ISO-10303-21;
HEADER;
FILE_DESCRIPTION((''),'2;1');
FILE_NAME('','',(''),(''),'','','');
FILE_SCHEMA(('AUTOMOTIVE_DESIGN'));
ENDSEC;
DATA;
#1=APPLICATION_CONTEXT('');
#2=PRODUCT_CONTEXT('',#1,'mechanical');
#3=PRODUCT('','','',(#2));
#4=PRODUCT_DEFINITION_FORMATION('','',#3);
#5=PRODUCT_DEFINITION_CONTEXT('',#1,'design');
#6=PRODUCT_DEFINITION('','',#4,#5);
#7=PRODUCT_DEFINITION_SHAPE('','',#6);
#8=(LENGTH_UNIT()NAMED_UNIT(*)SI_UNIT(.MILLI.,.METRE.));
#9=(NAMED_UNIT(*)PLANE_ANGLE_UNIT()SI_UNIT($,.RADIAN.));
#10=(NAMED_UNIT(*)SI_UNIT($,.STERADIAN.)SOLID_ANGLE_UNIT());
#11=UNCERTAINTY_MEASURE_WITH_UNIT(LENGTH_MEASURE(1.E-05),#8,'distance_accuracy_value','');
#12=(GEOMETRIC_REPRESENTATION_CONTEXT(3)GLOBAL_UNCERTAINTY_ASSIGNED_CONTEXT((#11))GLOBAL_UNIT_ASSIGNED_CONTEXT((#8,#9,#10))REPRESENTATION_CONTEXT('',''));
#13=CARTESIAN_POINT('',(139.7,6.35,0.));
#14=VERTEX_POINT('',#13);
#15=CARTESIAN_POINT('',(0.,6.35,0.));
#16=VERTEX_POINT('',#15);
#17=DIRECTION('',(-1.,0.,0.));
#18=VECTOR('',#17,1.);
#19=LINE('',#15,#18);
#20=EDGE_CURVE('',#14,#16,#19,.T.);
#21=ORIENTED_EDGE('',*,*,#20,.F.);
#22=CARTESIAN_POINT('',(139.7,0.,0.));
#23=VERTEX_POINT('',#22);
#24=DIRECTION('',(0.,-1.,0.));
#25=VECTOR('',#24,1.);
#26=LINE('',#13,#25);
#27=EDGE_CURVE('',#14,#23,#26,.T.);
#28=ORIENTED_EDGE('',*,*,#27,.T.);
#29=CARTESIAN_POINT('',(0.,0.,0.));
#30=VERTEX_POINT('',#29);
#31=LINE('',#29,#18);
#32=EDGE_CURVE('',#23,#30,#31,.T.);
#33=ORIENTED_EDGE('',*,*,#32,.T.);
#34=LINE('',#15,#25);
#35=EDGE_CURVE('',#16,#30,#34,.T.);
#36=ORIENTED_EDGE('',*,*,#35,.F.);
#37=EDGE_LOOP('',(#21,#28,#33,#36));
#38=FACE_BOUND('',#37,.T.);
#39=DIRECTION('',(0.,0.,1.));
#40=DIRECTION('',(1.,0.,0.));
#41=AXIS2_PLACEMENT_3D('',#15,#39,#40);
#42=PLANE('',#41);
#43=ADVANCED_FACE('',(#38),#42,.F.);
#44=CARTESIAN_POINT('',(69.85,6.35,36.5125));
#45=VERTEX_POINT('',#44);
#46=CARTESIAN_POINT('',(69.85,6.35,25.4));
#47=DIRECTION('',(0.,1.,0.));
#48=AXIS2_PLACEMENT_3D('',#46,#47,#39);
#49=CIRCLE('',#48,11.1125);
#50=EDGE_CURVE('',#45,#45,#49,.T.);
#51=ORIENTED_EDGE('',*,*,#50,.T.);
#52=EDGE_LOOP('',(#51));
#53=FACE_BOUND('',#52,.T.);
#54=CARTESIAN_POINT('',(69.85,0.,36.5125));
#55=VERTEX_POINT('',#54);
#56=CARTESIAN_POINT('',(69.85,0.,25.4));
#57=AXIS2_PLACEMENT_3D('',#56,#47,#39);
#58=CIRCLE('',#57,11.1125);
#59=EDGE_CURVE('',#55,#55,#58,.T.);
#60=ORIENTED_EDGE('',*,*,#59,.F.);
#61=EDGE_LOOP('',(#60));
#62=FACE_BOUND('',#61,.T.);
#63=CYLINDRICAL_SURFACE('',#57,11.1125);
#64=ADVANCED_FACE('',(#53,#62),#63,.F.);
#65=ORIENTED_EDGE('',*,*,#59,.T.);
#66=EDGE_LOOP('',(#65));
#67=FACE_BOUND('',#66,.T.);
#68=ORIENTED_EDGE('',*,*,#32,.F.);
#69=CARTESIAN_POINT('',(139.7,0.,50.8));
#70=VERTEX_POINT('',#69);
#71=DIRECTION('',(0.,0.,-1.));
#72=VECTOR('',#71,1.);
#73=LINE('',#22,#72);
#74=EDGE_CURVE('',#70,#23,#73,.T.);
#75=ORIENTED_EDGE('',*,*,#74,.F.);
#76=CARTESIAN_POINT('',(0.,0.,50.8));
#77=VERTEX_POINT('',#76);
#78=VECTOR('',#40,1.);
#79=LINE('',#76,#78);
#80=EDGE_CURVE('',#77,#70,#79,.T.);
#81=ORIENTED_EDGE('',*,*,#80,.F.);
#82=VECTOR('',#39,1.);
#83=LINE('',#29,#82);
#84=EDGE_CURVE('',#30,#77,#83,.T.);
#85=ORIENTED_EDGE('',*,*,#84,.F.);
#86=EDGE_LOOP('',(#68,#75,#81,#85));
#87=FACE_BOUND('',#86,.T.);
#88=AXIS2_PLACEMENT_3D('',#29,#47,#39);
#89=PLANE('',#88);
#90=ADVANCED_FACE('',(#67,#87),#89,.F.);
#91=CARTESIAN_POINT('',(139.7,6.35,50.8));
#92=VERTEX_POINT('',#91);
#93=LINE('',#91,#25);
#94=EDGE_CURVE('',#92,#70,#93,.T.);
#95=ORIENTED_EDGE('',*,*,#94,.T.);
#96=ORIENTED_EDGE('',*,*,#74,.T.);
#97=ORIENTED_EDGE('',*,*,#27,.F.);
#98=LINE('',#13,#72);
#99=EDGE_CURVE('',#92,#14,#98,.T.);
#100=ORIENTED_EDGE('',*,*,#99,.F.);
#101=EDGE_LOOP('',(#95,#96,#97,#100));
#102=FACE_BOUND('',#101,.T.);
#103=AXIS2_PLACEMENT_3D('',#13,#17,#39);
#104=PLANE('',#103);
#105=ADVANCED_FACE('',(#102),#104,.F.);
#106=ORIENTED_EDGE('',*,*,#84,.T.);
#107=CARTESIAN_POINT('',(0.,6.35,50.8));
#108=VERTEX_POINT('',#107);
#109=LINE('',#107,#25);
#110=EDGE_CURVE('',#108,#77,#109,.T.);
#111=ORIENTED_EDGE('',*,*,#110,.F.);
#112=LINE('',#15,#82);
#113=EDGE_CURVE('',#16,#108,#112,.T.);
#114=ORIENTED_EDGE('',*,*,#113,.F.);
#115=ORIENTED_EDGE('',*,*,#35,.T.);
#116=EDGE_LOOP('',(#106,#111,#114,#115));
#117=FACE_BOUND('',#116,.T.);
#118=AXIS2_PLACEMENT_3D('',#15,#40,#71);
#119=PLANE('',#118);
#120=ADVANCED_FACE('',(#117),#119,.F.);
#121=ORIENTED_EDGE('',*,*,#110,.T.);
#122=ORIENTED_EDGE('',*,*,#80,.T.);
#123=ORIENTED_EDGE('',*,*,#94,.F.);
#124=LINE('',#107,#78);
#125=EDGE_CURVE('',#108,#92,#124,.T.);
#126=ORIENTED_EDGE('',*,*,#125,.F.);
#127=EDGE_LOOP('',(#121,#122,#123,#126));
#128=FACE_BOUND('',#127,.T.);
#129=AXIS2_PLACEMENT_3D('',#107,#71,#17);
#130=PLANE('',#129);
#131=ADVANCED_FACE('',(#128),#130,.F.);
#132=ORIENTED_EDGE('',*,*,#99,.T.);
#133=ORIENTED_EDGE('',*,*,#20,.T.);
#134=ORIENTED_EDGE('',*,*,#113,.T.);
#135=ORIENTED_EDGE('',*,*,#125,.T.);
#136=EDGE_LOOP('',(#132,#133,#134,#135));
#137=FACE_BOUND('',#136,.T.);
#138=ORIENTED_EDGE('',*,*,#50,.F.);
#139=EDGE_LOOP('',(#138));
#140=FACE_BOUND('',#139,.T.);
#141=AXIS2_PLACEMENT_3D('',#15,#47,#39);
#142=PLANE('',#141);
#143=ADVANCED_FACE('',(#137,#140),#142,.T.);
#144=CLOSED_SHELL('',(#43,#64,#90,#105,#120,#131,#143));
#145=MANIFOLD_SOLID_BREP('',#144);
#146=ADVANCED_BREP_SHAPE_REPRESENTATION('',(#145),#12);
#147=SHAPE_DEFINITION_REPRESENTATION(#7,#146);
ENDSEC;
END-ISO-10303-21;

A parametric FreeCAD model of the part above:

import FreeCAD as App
import Part
import Sketcher
Q = App.Units.Quantity

doc = App.newDocument("Part")
body = doc.addObject("PartDesign::Body", "Body")

sketch1 = doc.addObject("Sketcher::SketchObject", "Sketch")
body.addObject(sketch1)
sketch1.AttachmentSupport = (doc.XZ_Plane, [""])
sketch1.MapMode = "FlatFace"
sketch1.addGeometry([
    Part.LineSegment(App.Vector(0, 0, 0), App.Vector(0, 50.8, 0)),
    Part.LineSegment(App.Vector(0, 50.8, 0), App.Vector(139.7, 50.8, 0)),
    Part.LineSegment(App.Vector(139.7, 50.8, 0), App.Vector(139.7, 0, 0)),
    Part.LineSegment(App.Vector(139.7, 0, 0), App.Vector(0, 0, 0)),
], False)
sketch1.addConstraint([
    Sketcher.Constraint("Coincident", 0, 2, 1, 1),
    Sketcher.Constraint("Coincident", 1, 2, 2, 1),
    Sketcher.Constraint("Coincident", 2, 2, 3, 1),
    Sketcher.Constraint("Coincident", 3, 2, 0, 1),
    Sketcher.Constraint("Vertical", 0),
    Sketcher.Constraint("Horizontal", 1),
    Sketcher.Constraint("Vertical", 2),
    Sketcher.Constraint("Horizontal", 3),
    Sketcher.Constraint("Coincident", 3, 2, -1, 1),
    Sketcher.Constraint("DistanceY", 0, 1, 0, 2, Q("2 in")),
    Sketcher.Constraint("DistanceX", 1, 1, 1, 2, Q("5.5 in")),
])
pad1 = doc.addObject("PartDesign::Pad", "Pad")
body.addObject(pad1)
pad1.Profile = sketch1
pad1.Length = Q("0.25 in")
pad1.Reversed = True

sketch2 = doc.addObject("Sketcher::SketchObject", "Sketch001")
body.addObject(sketch2)
sketch2.AttachmentSupport = (doc.XZ_Plane, [""])
sketch2.MapMode = "FlatFace"
sketch2.AttachmentOffset = App.Placement(App.Vector(0, 0, -0.25 * 25.4), App.Rotation())
sketch2.addGeometry(Part.Circle(App.Vector(69.85, 25.4, 0), App.Vector(0, 0, 1), 11.1125), False)
sketch2.addConstraint([
    Sketcher.Constraint("Diameter", 0, Q("0.875 in")),
    Sketcher.Constraint("DistanceY", -1, 1, 0, 3, Q("1 in")),
    Sketcher.Constraint("DistanceX", -1, 1, 0, 3, Q("2.75 in")),
])
pocket1 = doc.addObject("PartDesign::Pocket", "Pocket")
body.addObject(pocket1)
pocket1.Profile = sketch2
pocket1.Type = "ThroughAll"
pocket1.Reversed = True

doc.recompute()
